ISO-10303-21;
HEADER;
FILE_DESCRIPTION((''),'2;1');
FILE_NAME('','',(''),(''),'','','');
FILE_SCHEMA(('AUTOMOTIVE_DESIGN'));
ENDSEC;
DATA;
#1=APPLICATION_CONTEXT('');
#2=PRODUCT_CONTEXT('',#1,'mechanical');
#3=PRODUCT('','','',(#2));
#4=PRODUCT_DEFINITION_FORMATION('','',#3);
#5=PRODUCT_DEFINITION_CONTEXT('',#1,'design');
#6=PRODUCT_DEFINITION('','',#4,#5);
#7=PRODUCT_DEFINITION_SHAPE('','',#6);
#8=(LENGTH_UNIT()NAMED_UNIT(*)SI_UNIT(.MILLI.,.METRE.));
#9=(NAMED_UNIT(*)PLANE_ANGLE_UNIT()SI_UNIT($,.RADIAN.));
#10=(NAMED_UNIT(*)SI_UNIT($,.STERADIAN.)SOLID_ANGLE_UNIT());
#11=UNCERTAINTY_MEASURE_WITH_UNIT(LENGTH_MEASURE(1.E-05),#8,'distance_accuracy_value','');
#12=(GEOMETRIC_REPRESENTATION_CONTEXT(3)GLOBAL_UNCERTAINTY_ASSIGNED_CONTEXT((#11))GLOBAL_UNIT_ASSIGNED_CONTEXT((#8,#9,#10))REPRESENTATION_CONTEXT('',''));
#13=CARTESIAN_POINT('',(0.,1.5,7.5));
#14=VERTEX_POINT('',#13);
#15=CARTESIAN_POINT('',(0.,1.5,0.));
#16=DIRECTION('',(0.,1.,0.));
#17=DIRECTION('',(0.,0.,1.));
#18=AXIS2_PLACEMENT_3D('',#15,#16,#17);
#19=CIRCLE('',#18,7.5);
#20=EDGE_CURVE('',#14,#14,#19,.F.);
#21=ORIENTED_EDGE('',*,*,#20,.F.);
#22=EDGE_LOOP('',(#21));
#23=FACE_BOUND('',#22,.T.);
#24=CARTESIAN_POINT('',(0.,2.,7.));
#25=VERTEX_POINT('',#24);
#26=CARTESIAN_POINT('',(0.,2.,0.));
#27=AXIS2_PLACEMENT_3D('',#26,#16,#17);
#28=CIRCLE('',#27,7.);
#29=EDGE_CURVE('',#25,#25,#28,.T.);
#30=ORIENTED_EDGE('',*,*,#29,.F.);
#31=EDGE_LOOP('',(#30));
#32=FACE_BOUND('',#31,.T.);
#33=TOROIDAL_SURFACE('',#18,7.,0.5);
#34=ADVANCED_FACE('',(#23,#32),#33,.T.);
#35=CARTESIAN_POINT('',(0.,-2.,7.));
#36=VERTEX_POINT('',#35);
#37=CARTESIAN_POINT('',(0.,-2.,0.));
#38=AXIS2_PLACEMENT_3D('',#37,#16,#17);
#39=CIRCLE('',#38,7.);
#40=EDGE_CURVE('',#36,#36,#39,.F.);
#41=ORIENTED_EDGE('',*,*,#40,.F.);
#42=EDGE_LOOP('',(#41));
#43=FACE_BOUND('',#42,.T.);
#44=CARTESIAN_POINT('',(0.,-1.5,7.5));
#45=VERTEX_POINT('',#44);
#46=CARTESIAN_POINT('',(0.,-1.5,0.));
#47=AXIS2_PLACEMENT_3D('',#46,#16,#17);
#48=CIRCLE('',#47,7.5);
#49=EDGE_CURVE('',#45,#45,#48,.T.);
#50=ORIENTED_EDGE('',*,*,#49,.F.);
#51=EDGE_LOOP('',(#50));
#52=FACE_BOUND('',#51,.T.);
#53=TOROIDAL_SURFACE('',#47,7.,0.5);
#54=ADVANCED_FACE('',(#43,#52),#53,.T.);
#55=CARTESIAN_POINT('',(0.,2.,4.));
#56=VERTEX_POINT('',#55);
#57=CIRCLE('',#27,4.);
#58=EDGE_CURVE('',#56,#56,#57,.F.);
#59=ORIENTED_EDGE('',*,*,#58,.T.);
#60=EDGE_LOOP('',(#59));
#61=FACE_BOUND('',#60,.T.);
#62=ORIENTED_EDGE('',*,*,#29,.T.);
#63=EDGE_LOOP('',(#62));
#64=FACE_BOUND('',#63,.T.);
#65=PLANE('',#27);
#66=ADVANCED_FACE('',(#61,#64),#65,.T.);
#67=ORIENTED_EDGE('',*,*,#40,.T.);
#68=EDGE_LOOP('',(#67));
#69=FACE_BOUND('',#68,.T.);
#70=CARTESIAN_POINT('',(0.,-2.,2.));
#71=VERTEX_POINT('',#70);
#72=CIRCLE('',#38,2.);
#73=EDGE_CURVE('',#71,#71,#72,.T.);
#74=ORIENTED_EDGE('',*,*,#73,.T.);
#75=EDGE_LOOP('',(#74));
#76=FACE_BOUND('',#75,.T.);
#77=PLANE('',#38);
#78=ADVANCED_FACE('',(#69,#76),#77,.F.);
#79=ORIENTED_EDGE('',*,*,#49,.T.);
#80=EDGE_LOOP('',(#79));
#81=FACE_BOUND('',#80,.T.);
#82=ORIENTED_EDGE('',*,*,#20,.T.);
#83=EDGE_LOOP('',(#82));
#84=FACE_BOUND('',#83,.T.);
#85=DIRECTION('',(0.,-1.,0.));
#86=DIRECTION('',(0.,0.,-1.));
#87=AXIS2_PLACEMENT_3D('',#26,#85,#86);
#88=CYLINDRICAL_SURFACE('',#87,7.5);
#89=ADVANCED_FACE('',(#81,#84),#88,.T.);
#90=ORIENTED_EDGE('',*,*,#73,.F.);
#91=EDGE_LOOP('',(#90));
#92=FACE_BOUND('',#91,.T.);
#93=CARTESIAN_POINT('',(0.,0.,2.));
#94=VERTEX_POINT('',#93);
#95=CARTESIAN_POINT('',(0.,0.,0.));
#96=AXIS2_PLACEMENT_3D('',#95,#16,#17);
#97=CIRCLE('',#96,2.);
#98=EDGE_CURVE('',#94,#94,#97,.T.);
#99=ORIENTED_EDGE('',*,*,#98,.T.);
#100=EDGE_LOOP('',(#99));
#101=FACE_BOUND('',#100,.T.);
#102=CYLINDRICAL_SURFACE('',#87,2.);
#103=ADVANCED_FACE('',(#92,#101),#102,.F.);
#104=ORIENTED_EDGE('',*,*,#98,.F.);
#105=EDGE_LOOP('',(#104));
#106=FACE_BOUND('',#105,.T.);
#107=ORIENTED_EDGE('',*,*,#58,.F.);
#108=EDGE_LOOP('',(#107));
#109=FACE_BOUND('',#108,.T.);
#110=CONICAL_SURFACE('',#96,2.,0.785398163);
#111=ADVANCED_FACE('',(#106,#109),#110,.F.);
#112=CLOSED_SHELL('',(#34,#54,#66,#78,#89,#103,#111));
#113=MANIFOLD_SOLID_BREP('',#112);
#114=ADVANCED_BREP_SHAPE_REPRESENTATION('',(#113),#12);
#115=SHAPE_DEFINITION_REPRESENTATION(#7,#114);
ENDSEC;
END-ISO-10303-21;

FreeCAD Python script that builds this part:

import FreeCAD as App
import Part
import Sketcher
Q = App.Units.Quantity


def edges_at(feature, points):
    """Names of the edges that pass closest to the given points."""
    edges = feature.Shape.Edges
    near = lambda p: min(range(len(edges)), key=lambda i: edges[i].distToShape(Part.Vertex(*p))[0])
    return sorted({f"Edge{near(p) + 1}" for p in points})

doc = App.newDocument("Part")
params = doc.addObject("Spreadsheet::Sheet", "Params")
for row, (alias, value) in enumerate([
    ("sketch1_diameter", "15 mm"),
    ("sketch1_diameter2", "4 mm"),
    ("pad1_length", "4 mm"),
    ("fillet_radius", "0.5 mm"),
    ("chamfer_size", "2 mm"),
], start=1):
    params.set(f"A{row}", alias)
    params.set(f"B{row}", "=" + value)
    params.setAlias(f"B{row}", alias)

body = doc.addObject("PartDesign::Body", "Body")

sketch1 = body.newObject("Sketcher::SketchObject", "Sketch")
sketch1.AttachmentSupport = (doc.getObject("XZ_Plane"), [""])
sketch1.MapMode = "FlatFace"
sketch1.addGeometry([
    Part.Circle(App.Vector(0, 0, 0), App.Vector(0, 0, 1), 7.5),
    Part.Circle(App.Vector(0, 0, 0), App.Vector(0, 0, 1), 2),
], False)
sketch1.addConstraint([
    Sketcher.Constraint("Coincident", 0, 3, -1, 1),
    Sketcher.Constraint("Coincident", 1, 3, -1, 1),
    Sketcher.Constraint("Diameter", 0, Q("15 mm")),
    Sketcher.Constraint("Diameter", 1, Q("4 mm")),
])
sketch1.setExpression("Constraints[2]", "Params.sketch1_diameter")
sketch1.setExpression("Constraints[3]", "Params.sketch1_diameter2")
pad1 = body.newObject("PartDesign::Pad", "Pad")
pad1.Profile = sketch1
pad1.setExpression("Length", "Params.pad1_length")
pad1.Midplane = True
doc.recompute()

fillet = body.newObject("PartDesign::Fillet", "Fillet")
fillet.Base = (pad1, edges_at(pad1, [(0, -2, -7.5), (0, 2, -7.5)]))
fillet.setExpression("Radius", "Params.fillet_radius")
doc.recompute()

chamfer = body.newObject("PartDesign::Chamfer", "Chamfer")
chamfer.Base = (fillet, edges_at(fillet, [(0, 2, -2)]))
chamfer.setExpression("Size", "Params.chamfer_size")

doc.recompute()
